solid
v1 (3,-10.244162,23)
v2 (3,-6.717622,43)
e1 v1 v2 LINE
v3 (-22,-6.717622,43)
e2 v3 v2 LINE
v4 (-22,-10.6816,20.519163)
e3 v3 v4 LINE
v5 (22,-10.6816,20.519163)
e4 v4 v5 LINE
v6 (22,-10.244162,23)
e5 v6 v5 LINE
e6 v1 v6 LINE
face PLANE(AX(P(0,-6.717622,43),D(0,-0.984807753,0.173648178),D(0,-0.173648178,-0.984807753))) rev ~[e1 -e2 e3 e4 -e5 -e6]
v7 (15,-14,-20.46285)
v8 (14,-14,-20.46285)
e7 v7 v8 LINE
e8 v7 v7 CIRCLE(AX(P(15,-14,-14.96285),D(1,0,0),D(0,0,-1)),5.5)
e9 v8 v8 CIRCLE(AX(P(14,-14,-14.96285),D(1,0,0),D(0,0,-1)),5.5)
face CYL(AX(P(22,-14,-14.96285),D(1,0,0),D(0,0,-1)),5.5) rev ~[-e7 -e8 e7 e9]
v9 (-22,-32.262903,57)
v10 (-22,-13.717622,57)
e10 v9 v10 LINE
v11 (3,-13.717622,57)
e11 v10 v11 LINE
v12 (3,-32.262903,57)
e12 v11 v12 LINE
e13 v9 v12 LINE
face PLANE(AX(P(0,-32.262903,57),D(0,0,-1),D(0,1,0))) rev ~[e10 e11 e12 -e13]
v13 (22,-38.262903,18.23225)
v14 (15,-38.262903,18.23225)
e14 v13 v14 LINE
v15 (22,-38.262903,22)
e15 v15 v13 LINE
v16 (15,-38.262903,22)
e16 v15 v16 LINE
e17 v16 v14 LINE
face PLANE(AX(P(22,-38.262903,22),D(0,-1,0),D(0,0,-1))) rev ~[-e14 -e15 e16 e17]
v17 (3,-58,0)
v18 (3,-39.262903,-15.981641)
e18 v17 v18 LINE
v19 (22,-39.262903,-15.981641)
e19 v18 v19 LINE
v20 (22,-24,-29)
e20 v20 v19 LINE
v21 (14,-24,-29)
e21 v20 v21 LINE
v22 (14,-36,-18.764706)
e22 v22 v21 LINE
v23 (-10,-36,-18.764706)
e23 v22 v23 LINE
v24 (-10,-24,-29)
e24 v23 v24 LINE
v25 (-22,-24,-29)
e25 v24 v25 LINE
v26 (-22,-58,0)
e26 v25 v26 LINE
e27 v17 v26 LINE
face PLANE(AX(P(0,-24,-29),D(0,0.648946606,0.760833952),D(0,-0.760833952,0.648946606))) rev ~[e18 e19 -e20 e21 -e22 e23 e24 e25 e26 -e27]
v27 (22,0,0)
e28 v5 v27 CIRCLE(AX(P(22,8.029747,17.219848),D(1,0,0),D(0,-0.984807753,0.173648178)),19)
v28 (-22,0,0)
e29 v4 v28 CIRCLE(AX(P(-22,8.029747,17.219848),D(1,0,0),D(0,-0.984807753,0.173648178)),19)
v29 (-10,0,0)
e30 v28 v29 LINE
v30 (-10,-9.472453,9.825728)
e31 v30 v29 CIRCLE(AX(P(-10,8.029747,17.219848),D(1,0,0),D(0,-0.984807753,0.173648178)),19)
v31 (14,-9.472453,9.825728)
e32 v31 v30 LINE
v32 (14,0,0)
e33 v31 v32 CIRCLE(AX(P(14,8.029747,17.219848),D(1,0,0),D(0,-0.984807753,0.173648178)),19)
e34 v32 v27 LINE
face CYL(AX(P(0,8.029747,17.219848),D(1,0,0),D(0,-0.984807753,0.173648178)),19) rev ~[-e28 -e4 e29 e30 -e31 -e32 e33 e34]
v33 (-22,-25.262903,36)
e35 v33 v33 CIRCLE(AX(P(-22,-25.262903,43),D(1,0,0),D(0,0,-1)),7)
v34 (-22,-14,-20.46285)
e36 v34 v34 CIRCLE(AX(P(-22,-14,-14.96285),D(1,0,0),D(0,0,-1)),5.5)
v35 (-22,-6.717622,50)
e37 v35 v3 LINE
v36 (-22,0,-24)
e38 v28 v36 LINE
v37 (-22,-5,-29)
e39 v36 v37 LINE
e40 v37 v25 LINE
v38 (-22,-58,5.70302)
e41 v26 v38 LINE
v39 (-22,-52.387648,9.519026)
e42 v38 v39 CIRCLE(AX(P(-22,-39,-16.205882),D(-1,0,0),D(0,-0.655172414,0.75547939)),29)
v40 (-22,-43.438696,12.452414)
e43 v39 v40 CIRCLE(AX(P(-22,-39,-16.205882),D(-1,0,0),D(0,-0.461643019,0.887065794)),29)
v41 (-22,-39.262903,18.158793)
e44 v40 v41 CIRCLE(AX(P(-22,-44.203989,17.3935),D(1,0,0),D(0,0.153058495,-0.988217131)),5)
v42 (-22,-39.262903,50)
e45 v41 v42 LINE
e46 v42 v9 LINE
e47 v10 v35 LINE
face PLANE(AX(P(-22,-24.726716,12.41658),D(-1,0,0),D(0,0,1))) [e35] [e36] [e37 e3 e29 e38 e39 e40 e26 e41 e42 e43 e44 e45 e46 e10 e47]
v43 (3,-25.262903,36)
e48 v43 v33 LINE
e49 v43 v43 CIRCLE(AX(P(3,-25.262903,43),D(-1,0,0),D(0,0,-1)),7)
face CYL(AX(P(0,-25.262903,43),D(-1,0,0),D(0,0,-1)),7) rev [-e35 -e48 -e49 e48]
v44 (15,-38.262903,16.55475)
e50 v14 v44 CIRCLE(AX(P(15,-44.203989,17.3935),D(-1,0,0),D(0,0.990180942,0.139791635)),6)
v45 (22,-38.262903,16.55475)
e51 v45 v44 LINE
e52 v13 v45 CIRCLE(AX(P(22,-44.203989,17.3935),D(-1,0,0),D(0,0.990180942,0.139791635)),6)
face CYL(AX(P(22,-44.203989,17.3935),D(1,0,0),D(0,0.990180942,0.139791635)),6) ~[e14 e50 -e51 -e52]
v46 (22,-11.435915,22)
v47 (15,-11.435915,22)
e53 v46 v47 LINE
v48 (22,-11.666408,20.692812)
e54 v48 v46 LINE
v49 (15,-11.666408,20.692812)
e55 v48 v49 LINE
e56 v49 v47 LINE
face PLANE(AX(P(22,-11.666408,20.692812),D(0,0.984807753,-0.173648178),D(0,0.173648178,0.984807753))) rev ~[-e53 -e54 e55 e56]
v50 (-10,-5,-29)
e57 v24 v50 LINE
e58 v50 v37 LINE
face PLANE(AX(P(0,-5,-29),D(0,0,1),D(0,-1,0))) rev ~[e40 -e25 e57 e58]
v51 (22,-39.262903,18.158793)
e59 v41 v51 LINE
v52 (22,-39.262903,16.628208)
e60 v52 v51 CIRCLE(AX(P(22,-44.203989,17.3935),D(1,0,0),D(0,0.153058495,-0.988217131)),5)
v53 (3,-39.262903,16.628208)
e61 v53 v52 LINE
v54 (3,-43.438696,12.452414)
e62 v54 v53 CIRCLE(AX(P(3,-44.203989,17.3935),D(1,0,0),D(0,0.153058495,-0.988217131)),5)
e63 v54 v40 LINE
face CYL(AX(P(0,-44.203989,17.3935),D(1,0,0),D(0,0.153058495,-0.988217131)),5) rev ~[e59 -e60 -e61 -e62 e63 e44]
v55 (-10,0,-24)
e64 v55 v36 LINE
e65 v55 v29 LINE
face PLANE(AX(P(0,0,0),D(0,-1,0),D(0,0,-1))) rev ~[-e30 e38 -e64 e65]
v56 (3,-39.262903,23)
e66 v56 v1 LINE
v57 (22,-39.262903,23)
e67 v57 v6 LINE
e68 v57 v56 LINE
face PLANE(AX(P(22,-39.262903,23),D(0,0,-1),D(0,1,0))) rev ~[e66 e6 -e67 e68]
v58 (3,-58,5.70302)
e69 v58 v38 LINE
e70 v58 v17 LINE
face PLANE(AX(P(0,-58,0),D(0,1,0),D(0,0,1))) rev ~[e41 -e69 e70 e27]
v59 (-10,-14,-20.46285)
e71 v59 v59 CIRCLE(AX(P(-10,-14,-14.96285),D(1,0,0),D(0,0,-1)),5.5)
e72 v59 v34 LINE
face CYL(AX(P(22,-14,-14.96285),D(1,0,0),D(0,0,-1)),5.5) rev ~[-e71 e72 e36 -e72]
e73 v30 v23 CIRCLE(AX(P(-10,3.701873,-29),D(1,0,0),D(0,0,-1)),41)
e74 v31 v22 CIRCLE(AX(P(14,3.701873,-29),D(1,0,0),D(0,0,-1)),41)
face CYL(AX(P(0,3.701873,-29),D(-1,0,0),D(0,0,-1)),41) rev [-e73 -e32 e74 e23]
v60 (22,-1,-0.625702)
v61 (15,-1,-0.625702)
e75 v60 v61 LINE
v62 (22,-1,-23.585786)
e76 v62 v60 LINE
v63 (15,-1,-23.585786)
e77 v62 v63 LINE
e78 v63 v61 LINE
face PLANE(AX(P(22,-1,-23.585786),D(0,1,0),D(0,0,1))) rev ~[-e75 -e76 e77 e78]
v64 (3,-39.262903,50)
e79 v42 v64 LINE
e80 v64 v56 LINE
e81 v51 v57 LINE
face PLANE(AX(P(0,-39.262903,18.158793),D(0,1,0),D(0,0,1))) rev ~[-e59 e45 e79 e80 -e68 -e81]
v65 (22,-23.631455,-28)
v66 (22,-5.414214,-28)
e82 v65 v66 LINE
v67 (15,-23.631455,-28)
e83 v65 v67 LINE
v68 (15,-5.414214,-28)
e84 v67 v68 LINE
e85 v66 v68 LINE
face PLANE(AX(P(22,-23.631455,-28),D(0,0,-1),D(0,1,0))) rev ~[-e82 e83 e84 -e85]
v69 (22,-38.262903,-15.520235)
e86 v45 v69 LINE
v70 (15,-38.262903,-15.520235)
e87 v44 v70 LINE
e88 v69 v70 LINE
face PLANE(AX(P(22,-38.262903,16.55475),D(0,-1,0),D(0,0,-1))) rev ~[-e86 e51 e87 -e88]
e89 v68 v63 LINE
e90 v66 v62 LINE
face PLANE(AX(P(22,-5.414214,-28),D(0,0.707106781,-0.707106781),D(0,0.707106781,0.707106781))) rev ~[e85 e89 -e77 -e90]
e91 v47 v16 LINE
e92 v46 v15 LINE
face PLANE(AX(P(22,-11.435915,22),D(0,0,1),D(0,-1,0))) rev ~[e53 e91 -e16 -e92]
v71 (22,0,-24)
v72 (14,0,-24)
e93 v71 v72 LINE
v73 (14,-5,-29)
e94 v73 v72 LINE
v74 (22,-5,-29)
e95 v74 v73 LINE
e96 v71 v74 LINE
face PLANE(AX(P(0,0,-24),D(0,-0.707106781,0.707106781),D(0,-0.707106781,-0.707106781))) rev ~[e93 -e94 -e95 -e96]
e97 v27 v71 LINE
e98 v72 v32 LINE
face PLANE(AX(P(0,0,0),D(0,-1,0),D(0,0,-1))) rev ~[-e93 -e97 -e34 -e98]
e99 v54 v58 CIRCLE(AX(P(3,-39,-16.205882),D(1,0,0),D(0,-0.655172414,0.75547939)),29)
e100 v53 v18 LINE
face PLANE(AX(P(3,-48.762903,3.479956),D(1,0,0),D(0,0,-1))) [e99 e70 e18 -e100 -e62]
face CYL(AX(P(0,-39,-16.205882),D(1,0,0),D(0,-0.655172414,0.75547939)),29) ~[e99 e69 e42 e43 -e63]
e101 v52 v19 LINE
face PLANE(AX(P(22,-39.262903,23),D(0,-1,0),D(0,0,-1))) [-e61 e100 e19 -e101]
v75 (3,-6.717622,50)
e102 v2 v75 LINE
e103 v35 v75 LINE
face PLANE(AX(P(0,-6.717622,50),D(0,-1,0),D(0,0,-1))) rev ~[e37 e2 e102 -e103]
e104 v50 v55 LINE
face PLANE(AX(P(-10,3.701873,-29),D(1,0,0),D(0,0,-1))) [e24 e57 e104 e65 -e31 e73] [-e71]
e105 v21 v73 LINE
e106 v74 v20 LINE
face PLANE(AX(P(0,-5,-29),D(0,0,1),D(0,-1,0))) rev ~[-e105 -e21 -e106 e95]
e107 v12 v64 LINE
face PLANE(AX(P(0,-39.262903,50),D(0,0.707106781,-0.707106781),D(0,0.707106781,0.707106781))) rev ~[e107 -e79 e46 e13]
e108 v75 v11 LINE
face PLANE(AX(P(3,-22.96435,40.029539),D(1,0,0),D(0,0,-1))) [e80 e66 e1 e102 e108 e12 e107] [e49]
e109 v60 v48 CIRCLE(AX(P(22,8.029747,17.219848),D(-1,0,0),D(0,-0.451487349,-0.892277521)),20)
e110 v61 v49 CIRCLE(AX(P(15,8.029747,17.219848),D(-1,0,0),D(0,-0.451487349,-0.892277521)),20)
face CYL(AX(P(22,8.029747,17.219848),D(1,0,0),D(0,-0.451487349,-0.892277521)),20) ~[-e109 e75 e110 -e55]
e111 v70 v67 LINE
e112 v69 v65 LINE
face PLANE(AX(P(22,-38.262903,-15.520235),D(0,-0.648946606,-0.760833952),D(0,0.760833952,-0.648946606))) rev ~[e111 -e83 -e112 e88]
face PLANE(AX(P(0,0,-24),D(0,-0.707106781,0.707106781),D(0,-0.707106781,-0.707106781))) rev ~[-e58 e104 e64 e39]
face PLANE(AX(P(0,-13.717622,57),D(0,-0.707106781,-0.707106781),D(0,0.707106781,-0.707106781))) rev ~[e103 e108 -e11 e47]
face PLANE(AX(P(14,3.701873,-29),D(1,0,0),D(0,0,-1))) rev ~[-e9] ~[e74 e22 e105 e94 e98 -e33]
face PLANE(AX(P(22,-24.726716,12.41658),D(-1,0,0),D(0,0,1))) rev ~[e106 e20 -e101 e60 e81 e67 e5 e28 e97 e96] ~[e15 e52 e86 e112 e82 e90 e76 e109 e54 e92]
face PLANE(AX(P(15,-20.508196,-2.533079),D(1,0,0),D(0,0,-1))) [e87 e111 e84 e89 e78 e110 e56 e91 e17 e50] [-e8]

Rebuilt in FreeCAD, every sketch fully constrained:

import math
import FreeCAD as App
import Part
import Sketcher
from FreeCAD import Vector
Q = App.Units.Quantity

doc = App.newDocument("Part")
body = doc.addObject("PartDesign::Body", "Body")

# Sketch on YZ plane
sketch1 = body.newObject("Sketcher::SketchObject", "Sketch")
sketch1.AttachmentSupport = (doc.getObject("YZ_Plane"), [""])
sketch1.MapMode = "FlatFace"
sketch1.addGeometry([
    Part.LineSegment(Vector(0, -24, 0), Vector(0, 0, 0)),  # 0
    Part.ArcOfCircle(Part.Circle(Vector(8.029747, 17.219848, 0), Vector(0, 0, 1), 19), math.radians(170), math.radians(245)),  # 1
    Part.LineSegment(Vector(-10.6816, 20.519163, 0), Vector(-6.717622, 43, 0)),  # 2
    Part.LineSegment(Vector(-6.717622, 43, 0), Vector(-6.717622, 50, 0)),  # 3
    Part.LineSegment(Vector(-6.717622, 50, 0), Vector(-13.717622, 57, 0)),  # 4
    Part.LineSegment(Vector(-13.717622, 57, 0), Vector(-32.262903, 57, 0)),  # 5
    Part.LineSegment(Vector(-32.262903, 57, 0), Vector(-39.262903, 50, 0)),  # 6
    Part.LineSegment(Vector(-39.262903, 50, 0), Vector(-39.262903, 18.158793, 0)),  # 7
    Part.ArcOfCircle(Part.Circle(Vector(-44.203989, 17.3935, 0), Vector(0, 0, 1), 5), math.radians(-81.195787), math.radians(8.804213)),  # 8
    Part.ArcOfCircle(Part.Circle(Vector(-39, -16.205882, 0), Vector(0, 0, 1), 29), math.radians(98.804213), math.radians(117.493179)),  # 9
    Part.ArcOfCircle(Part.Circle(Vector(-39, -16.205882, 0), Vector(0, 0, 1), 29), math.radians(117.493179), math.radians(130.932725)),  # 10
    Part.LineSegment(Vector(-58, 5.70302, 0), Vector(-58, 0, 0)),  # 11
    Part.LineSegment(Vector(-58, 0, 0), Vector(-24, -29, 0)),  # 12
    Part.LineSegment(Vector(-24, -29, 0), Vector(-5, -29, 0)),  # 13
    Part.LineSegment(Vector(-5, -29, 0), Vector(0, -24, 0)),  # 14
    Part.Circle(Vector(-25.262903, 43, 0), Vector(0, 0, 1), 7),  # 15
], False)
sketch1.addConstraint([
    Sketcher.Constraint("Coincident", 0, 2, 1, 2),
    Sketcher.Constraint("Tangent", 1, 1, 2, 1),
    Sketcher.Constraint("Coincident", 2, 2, 3, 1),
    Sketcher.Constraint("Coincident", 3, 2, 4, 1),
    Sketcher.Constraint("Coincident", 4, 2, 5, 1),
    Sketcher.Constraint("Coincident", 5, 2, 6, 1),
    Sketcher.Constraint("Coincident", 6, 2, 7, 1),
    Sketcher.Constraint("Coincident", 7, 2, 8, 2),
    Sketcher.Constraint("Tangent", 8, 1, 9, 1),
    Sketcher.Constraint("Tangent", 9, 2, 10, 1),
    Sketcher.Constraint("Coincident", 10, 2, 11, 1),
    Sketcher.Constraint("Coincident", 11, 2, 12, 1),
    Sketcher.Constraint("Coincident", 12, 2, 13, 1),
    Sketcher.Constraint("Coincident", 13, 2, 14, 1),
    Sketcher.Constraint("Coincident", 14, 2, 0, 1),
    Sketcher.Constraint("Vertical", 0),
    Sketcher.Constraint("Vertical", 3),
    Sketcher.Constraint("Horizontal", 5),
    Sketcher.Constraint("Vertical", 7),
    Sketcher.Constraint("Vertical", 11),
    Sketcher.Constraint("Horizontal", 13),
    Sketcher.Constraint("Coincident", 0, 2, -1, 1),
    Sketcher.Constraint("Equal", 9, 10),
    Sketcher.Constraint("PointOnObject", 11, 2, -1),
    Sketcher.Constraint("Perpendicular", 4, 6),
    Sketcher.Constraint("Parallel", 6, 14),
    Sketcher.Constraint("Horizontal", 15, 3, 2, 2),
    Sketcher.Constraint("Horizontal", 3, 2, 6, 2),
    Sketcher.Constraint("Equal", 4, 6),
    Sketcher.Constraint("Diameter", 15, 14.0),
    Sketcher.Constraint("Radius", 1, 19.0),
    Sketcher.Constraint("Radius", 8, 5.0),
    Sketcher.Constraint("Radius", 9, 29.0),
    Sketcher.Constraint("DistanceX", 13, 1, 13, 2, 19.0),
    Sketcher.Constraint("DistanceY", 0, 1, 0, 2, 24.0),
    Sketcher.Constraint("DistanceY", 3, 1, 3, 2, 7.0),
    Sketcher.Constraint("Angle", 2, Q("80 deg")),
    Sketcher.Constraint("DistanceX", 9, 3, -1, 1, 39.0),
    Sketcher.Constraint("DistanceY", -1, 1, 15, 3, 43.0),
    Sketcher.Constraint("DistanceY", -1, 1, 4, 2, 57.0),
    Sketcher.Constraint("DistanceX", 10, 2, -1, 1, 58.0),
    Sketcher.Constraint("DistanceX", 12, 2, -1, 1, 24.0),
    Sketcher.Constraint("DistanceX", 5, 2, 15, 3, 7.0),
    Sketcher.Constraint("DistanceX", 5, 2, 5, 1, 18.545281),
    Sketcher.Constraint("DistanceY", 11, 2, 11, 1, 5.70302),
    Sketcher.Constraint("DistanceY", -1, 1, 8, 3, 17.3935),
    Sketcher.Constraint("DistanceX", 1, 1, -1, 1, 10.6816),
    Sketcher.Constraint("DistanceX", 9, 2, 8, 1, 8.948951),
])
pad1 = body.newObject("PartDesign::Pad", "Pad")
pad1.Profile = sketch1
pad1.Length = 44
pad1.Midplane = True

# Sketch on YZ plane
sketch2 = body.newObject("Sketcher::SketchObject", "Sketch001")
sketch2.AttachmentSupport = (doc.getObject("YZ_Plane"), [""])
sketch2.MapMode = "FlatFace"
sketch2.AttachmentOffset = App.Placement(Vector(0, 0, 22), App.Rotation())
sketch2.addGeometry(Part.Circle(Vector(-14, -14.96285, 0), Vector(0, 0, 1), 5.5), False)
sketch2.addConstraint([
    Sketcher.Constraint("Diameter", 0, 11.0),
    Sketcher.Constraint("DistanceX", 0, 3, -1, 1, 14.0),
    Sketcher.Constraint("DistanceY", 0, 3, -1, 1, 14.96285),
])
pocket1 = body.newObject("PartDesign::Pocket", "Pocket")
pocket1.Profile = sketch2
pocket1.Length = 46

# Sketch on YZ plane
sketch3 = body.newObject("Sketcher::SketchObject", "Sketch002")
sketch3.AttachmentSupport = (doc.getObject("YZ_Plane"), [""])
sketch3.MapMode = "FlatFace"
sketch3.AttachmentOffset = App.Placement(Vector(0, 0, 22), App.Rotation())
sketch3.addGeometry([
    Part.LineSegment(Vector(-6.665796, 57.059078, 0), Vector(-39.262903, 57.059078, 0)),
    Part.LineSegment(Vector(-39.262903, 57.059078, 0), Vector(-39.262903, 23, 0)),
    Part.LineSegment(Vector(-39.262903, 23, 0), Vector(-6.665796, 23, 0)),
    Part.LineSegment(Vector(-6.665796, 23, 0), Vector(-6.665796, 57.059078, 0)),
], False)
sketch3.addConstraint([
    Sketcher.Constraint("Coincident", 0, 2, 1, 1),
    Sketcher.Constraint("Coincident", 1, 2, 2, 1),
    Sketcher.Constraint("Coincident", 2, 2, 3, 1),
    Sketcher.Constraint("Coincident", 3, 2, 0, 1),
    Sketcher.Constraint("Horizontal", 0),
    Sketcher.Constraint("Vertical", 1),
    Sketcher.Constraint("Horizontal", 2),
    Sketcher.Constraint("Vertical", 3),
    Sketcher.Constraint("DistanceY", -1, 1, 1, 2, 23.0),
    Sketcher.Constraint("DistanceX", 0, 2, 0, 1, 32.597107),
    Sketcher.Constraint("DistanceY", 1, 2, 1, 1, 34.059078),
    Sketcher.Constraint("DistanceX", 0, 2, -1, 1, 39.262903),
])
pocket2 = body.newObject("PartDesign::Pocket", "Pocket001")
pocket2.Profile = sketch3
pocket2.Length = 19

# Sketch on YZ plane
sketch4 = body.newObject("Sketcher::SketchObject", "Sketch003")
sketch4.AttachmentSupport = (doc.getObject("YZ_Plane"), [""])
sketch4.MapMode = "FlatFace"
sketch4.addGeometry(Part.Circle(Vector(3.701873, -29, 0), Vector(0, 0, 1), 41), False)
sketch4.addConstraint([
    Sketcher.Constraint("Diameter", 0, 82.0),
    Sketcher.Constraint("DistanceY", 0, 3, -1, 1, 29.0),
    Sketcher.Constraint("DistanceX", -1, 1, 0, 3, 3.701873),
])
pocket3 = body.newObject("PartDesign::Pocket", "Pocket002")
pocket3.Profile = sketch4
pocket3.Type = "TwoLengths"
pocket3.Length = 14
pocket3.Length2 = 10
pocket3.Reversed = True

# Sketch on YZ plane
sketch5 = body.newObject("Sketcher::SketchObject", "Sketch004")
sketch5.AttachmentSupport = (doc.getObject("YZ_Plane"), [""])
sketch5.MapMode = "FlatFace"
sketch5.AttachmentOffset = App.Placement(Vector(0, 0, 22), App.Rotation())
sketch5.addGeometry([
    Part.LineSegment(Vector(-39.262903, 23, 0), Vector(-58.262903, 23, 0)),
    Part.LineSegment(Vector(-58.262903, 23, 0), Vector(-58.262903, -16.040088, 0)),
    Part.LineSegment(Vector(-58.262903, -16.040088, 0), Vector(-39.262903, -16.040088, 0)),
    Part.LineSegment(Vector(-39.262903, -16.040088, 0), Vector(-39.262903, 23, 0)),
], False)
sketch5.addConstraint([
    Sketcher.Constraint("Coincident", 0, 2, 1, 1),
    Sketcher.Constraint("Coincident", 1, 2, 2, 1),
    Sketcher.Constraint("Coincident", 2, 2, 3, 1),
    Sketcher.Constraint("Coincident", 3, 2, 0, 1),
    Sketcher.Constraint("Horizontal", 0),
    Sketcher.Constraint("Vertical", 1),
    Sketcher.Constraint("Horizontal", 2),
    Sketcher.Constraint("Vertical", 3),
    Sketcher.Constraint("DistanceX", 0, 2, 0, 1, 19.0),
    Sketcher.Constraint("DistanceY", -1, 1, 0, 2, 23.0),
    Sketcher.Constraint("DistanceY", 1, 2, 1, 1, 39.040088),
    Sketcher.Constraint("DistanceX", 0, 2, -1, 1, 58.262903),
])
pocket4 = body.newObject("PartDesign::Pocket", "Pocket003")
pocket4.Profile = sketch5
pocket4.Length = 19

# Sketch on YZ plane
sketch6 = body.newObject("Sketcher::SketchObject", "Sketch005")
sketch6.AttachmentSupport = (doc.getObject("YZ_Plane"), [""])
sketch6.MapMode = "FlatFace"
sketch6.AttachmentOffset = App.Placement(Vector(0, 0, 22), App.Rotation())
sketch6.addGeometry([
    Part.LineSegment(Vector(-38.262903, 16.55475, 0), Vector(-38.262903, -15.520235, 0)),  # 0
    Part.LineSegment(Vector(-38.262903, -15.520235, 0), Vector(-23.631455, -28, 0)),  # 1
    Part.LineSegment(Vector(-23.631455, -28, 0), Vector(-5.414214, -28, 0)),  # 2
    Part.LineSegment(Vector(-5.414214, -28, 0), Vector(-1, -23.585786, 0)),  # 3
    Part.LineSegment(Vector(-1, -23.585786, 0), Vector(-1, -0.625702, 0)),  # 4
    Part.ArcOfCircle(Part.Circle(Vector(8.029747, 17.219848, 0), Vector(0, 0, 1), 20), math.radians(170), math.radians(243.160849)),  # 5
    Part.LineSegment(Vector(-11.666408, 20.692812, 0), Vector(-11.435915, 22, 0)),  # 6
    Part.LineSegment(Vector(-11.435915, 22, 0), Vector(-38.262903, 22, 0)),  # 7
    Part.LineSegment(Vector(-38.262903, 22, 0), Vector(-38.262903, 18.23225, 0)),  # 8
    Part.ArcOfCircle(Part.Circle(Vector(-44.203989, 17.3935, 0), Vector(0, 0, 1), 6), math.radians(-8.035789), math.radians(8.035789)),  # 9
], False)
sketch6.addConstraint([
    Sketcher.Constraint("Coincident", 0, 2, 1, 1),
    Sketcher.Constraint("Coincident", 1, 2, 2, 1),
    Sketcher.Constraint("Coincident", 2, 2, 3, 1),
    Sketcher.Constraint("Coincident", 3, 2, 4, 1),
    Sketcher.Constraint("Coincident", 4, 2, 5, 2),
    Sketcher.Constraint("Tangent", 5, 1, 6, 1),
    Sketcher.Constraint("Coincident", 6, 2, 7, 1),
    Sketcher.Constraint("Coincident", 7, 2, 8, 1),
    Sketcher.Constraint("Coincident", 8, 2, 9, 2),
    Sketcher.Constraint("Coincident", 9, 1, 0, 1),
    Sketcher.Constraint("Vertical", 0),
    Sketcher.Constraint("Horizontal", 2),
    Sketcher.Constraint("Vertical", 4),
    Sketcher.Constraint("Horizontal", 7),
    Sketcher.Constraint("Vertical", 8),
    Sketcher.Constraint("Vertical", 0, 2, 7, 2),
    Sketcher.Constraint("Radius", 5, 20.0),
    Sketcher.Constraint("Radius", 9, 6.0),
    Sketcher.Constraint("Angle", 3, Q("45 deg")),
    Sketcher.Constraint("Angle", 6, Q("80 deg")),
    Sketcher.Constraint("DistanceY", 1, 2, -1, 1, 28.0),
    Sketcher.Constraint("DistanceX", 3, 2, -1, 1, 1.0),
    Sketcher.Constraint("DistanceY", -1, 1, 6, 2, 22.0),
    Sketcher.Constraint("DistanceX", 2, 1, 2, 2, 18.217241),
    Sketcher.Constraint("DistanceY", 8, 2, 8, 1, 3.76775),
    Sketcher.Constraint("DistanceY", -1, 1, 9, 3, 17.3935),
    Sketcher.Constraint("DistanceX", 1, 2, 5, 3, 31.661202),
    Sketcher.Constraint("Distance", 3, 6.242641),
    Sketcher.Constraint("DistanceX", 7, 2, 7, 1, 26.826988),
    Sketcher.Constraint("DistanceY", 0, 2, 0, 1, 32.074986),
    Sketcher.Constraint("DistanceY", 4, 1, 4, 2, 22.960084),
])
pocket5 = body.newObject("PartDesign::Pocket", "Pocket004")
pocket5.Profile = sketch6
pocket5.Length = 7

doc.recompute()
